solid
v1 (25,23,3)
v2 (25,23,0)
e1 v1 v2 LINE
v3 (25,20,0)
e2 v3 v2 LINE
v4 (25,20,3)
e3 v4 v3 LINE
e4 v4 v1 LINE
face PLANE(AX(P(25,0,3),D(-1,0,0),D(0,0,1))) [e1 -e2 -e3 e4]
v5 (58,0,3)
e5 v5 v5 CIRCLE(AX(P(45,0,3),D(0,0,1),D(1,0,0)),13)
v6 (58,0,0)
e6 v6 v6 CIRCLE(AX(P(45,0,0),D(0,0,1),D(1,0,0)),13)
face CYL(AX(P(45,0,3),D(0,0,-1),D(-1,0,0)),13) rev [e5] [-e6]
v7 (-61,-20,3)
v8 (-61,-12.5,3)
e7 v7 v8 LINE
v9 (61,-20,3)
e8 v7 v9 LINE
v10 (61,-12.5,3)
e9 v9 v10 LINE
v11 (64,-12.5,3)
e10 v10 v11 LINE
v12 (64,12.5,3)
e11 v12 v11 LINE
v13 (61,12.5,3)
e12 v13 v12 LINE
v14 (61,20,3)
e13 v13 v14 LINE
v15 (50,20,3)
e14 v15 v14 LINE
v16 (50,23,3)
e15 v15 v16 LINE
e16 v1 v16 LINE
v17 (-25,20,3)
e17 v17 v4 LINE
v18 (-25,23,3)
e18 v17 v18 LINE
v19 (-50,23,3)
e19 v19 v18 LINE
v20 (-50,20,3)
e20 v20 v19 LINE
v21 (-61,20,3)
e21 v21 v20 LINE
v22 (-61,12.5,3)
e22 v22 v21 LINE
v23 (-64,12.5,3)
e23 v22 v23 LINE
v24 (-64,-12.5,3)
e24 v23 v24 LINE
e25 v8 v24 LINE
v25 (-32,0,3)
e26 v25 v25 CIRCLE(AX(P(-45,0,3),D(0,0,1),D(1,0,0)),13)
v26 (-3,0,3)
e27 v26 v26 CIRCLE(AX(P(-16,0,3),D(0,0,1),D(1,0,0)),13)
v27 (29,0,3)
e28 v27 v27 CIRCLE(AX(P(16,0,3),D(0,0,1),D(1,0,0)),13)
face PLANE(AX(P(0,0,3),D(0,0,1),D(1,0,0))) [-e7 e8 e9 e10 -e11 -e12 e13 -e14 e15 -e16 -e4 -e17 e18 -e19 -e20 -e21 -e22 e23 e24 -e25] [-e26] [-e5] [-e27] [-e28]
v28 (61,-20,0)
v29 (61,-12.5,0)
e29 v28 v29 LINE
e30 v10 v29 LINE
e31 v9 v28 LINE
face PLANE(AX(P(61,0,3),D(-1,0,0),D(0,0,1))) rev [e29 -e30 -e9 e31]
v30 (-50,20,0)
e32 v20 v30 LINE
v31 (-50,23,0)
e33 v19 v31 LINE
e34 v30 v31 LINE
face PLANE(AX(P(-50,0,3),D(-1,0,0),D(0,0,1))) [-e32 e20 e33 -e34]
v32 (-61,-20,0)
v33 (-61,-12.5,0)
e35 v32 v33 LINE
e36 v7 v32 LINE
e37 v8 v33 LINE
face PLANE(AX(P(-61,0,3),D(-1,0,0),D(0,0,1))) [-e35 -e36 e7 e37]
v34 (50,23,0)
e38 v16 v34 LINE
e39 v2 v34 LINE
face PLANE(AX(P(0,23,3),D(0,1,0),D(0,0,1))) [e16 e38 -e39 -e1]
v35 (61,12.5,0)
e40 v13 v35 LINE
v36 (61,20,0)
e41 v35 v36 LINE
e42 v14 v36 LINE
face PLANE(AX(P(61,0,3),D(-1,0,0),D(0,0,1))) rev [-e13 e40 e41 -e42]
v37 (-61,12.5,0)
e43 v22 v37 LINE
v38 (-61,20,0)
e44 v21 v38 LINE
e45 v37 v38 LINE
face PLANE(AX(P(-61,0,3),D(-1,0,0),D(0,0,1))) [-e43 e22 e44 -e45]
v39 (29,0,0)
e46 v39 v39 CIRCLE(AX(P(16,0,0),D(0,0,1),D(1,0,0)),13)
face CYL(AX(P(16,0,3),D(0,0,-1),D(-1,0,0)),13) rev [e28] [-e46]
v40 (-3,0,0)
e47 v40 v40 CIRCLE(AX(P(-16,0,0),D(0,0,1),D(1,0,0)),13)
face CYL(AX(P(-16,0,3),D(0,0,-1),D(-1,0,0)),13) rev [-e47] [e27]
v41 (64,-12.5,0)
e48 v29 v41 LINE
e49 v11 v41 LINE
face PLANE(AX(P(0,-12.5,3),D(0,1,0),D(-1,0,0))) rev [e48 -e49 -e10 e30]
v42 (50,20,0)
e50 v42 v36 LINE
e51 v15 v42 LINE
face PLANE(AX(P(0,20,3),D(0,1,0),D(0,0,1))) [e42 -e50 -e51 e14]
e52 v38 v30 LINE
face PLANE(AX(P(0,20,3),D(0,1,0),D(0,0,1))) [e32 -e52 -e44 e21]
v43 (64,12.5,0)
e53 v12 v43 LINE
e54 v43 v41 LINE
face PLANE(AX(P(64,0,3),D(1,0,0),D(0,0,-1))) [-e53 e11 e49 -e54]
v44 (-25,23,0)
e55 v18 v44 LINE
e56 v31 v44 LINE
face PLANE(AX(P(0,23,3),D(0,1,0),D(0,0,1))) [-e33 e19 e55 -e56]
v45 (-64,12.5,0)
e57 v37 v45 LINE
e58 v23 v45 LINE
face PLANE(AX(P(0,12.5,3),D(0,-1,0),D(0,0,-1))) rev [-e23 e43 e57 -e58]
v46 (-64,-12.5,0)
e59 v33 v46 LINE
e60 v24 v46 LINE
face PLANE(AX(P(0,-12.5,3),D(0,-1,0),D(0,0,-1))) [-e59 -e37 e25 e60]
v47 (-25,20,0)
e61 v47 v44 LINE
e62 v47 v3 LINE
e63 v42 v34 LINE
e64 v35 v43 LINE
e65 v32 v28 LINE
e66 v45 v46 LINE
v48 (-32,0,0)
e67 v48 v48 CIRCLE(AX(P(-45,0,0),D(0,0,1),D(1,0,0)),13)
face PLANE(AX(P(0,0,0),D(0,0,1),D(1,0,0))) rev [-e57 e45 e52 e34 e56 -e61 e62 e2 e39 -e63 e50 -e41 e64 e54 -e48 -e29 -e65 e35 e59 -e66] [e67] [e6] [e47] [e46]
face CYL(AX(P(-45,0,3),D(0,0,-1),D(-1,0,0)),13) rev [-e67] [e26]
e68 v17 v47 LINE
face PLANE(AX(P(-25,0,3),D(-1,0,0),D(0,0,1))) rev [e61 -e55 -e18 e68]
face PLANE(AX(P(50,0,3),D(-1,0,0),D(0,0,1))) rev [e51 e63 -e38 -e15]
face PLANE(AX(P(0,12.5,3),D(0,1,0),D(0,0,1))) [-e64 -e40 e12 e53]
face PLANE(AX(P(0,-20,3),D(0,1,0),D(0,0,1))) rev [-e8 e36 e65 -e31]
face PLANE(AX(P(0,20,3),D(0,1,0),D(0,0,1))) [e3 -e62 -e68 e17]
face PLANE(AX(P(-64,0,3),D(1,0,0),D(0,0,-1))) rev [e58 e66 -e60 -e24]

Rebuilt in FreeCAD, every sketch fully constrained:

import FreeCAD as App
import Part
import Sketcher

V = App.Vector


def add_polygon(sketch, points):
    """Adds a closed chain of lines whose ends are joined by coincident constraints."""
    first, n = sketch.GeometryCount, len(points)
    for a, b in zip(points, points[1:] + points[:1]):
        sketch.addGeometry(Part.LineSegment(App.Vector(*a, 0), App.Vector(*b, 0)), False)
    for i in range(n):
        sketch.addConstraint(Sketcher.Constraint("Coincident", first + i, 2, first + (i + 1) % n, 1))

doc = App.newDocument("Part")
body = doc.addObject("PartDesign::Body", "Body")

# Sketch on XY plane
sketch1 = body.newObject("Sketcher::SketchObject", "Sketch")
sketch1.AttachmentSupport = (doc.getObject("XY_Plane"), [""])
sketch1.MapMode = "FlatFace"
add_polygon(sketch1, [(-61, -12.5), (-61, -20), (61, -20), (61, -12.5), (64, -12.5), (64, 12.5), (61, 12.5), (61, 20), (50, 20), (50, 23), (25, 23), (25, 20), (-25, 20), (-25, 23), (-50, 23), (-50, 20), (-61, 20), (-61, 12.5), (-64, 12.5), (-64, -12.5)])  # lines 0-19
sketch1.addGeometry(Part.Circle(V(-45, 0, 0), V(0, 0, 1), 13), False)  # 20
sketch1.addGeometry(Part.Circle(V(-16, 0, 0), V(0, 0, 1), 13), False)  # 21
sketch1.addGeometry(Part.Circle(V(16, 0, 0), V(0, 0, 1), 13), False)  # 22
sketch1.addGeometry(Part.Circle(V(45, 0, 0), V(0, 0, 1), 13), False)  # 23
sketch1.addConstraint(Sketcher.Constraint("Vertical", 0))
sketch1.addConstraint(Sketcher.Constraint("Horizontal", 1))
sketch1.addConstraint(Sketcher.Constraint("Vertical", 2))
sketch1.addConstraint(Sketcher.Constraint("Horizontal", 3))
sketch1.addConstraint(Sketcher.Constraint("Vertical", 4))
sketch1.addConstraint(Sketcher.Constraint("Horizontal", 5))
sketch1.addConstraint(Sketcher.Constraint("Vertical", 6))
sketch1.addConstraint(Sketcher.Constraint("Horizontal", 7))
sketch1.addConstraint(Sketcher.Constraint("Vertical", 8))
sketch1.addConstraint(Sketcher.Constraint("Horizontal", 9))
sketch1.addConstraint(Sketcher.Constraint("Vertical", 10))
sketch1.addConstraint(Sketcher.Constraint("Horizontal", 11))
sketch1.addConstraint(Sketcher.Constraint("Vertical", 12))
sketch1.addConstraint(Sketcher.Constraint("Horizontal", 13))
sketch1.addConstraint(Sketcher.Constraint("Vertical", 14))
sketch1.addConstraint(Sketcher.Constraint("Horizontal", 15))
sketch1.addConstraint(Sketcher.Constraint("Vertical", 16))
sketch1.addConstraint(Sketcher.Constraint("Horizontal", 17))
sketch1.addConstraint(Sketcher.Constraint("Vertical", 18))
sketch1.addConstraint(Sketcher.Constraint("Horizontal", 19))
sketch1.addConstraint(Sketcher.Constraint("Equal", 20, 21))
sketch1.addConstraint(Sketcher.Constraint("Equal", 21, 22))
sketch1.addConstraint(Sketcher.Constraint("Equal", 22, 23))
sketch1.addConstraint(Sketcher.Constraint("Symmetric", 21, 3, 22, 3, -1, 1))
sketch1.addConstraint(Sketcher.Constraint("Symmetric", 20, 3, 23, 3, -1, 1))
sketch1.addConstraint(Sketcher.Constraint("Symmetric", 0, 2, 6, 2, -1, 1))
sketch1.addConstraint(Sketcher.Constraint("Symmetric", 1, 2, 15, 2, -1, 1))
sketch1.addConstraint(Sketcher.Constraint("Symmetric", 3, 2, 17, 2, -1, 1))
sketch1.addConstraint(Sketcher.Constraint("Symmetric", 9, 2, 12, 2, -2))
sketch1.addConstraint(Sketcher.Constraint("Symmetric", 5, 2, 16, 2, -2))
sketch1.addConstraint(Sketcher.Constraint("PointOnObject", 20, 3, -1))
sketch1.addConstraint(Sketcher.Constraint("PointOnObject", 21, 3, -1))
sketch1.addConstraint(Sketcher.Constraint("Horizontal", 7, 2, 10, 2))
sketch1.addConstraint(Sketcher.Constraint("Horizontal", 3, 2, 18, 2))
sketch1.addConstraint(Sketcher.Constraint("Equal", 9, 13))
sketch1.addConstraint(Sketcher.Constraint("Equal", 13, 4))
sketch1.addConstraint(Sketcher.Constraint("Equal", 19, 8))
sketch1.addConstraint(Sketcher.Constraint("Diameter", 20, 26.0))
sketch1.addConstraint(Sketcher.Constraint("DistanceX", 1, 1, 1, 2, 122.0))
sketch1.addConstraint(Sketcher.Constraint("DistanceX", 3, 1, 3, 2, 3.0))
sketch1.addConstraint(Sketcher.Constraint("DistanceX", 7, 2, 7, 1, 11.0))
sketch1.addConstraint(Sketcher.Constraint("DistanceX", 9, 2, 9, 1, 25.0))
sketch1.addConstraint(Sketcher.Constraint("DistanceY", 0, 2, 0, 1, 7.5))
sketch1.addConstraint(Sketcher.Constraint("DistanceX", 20, 3, -1, 1, 45.0))
sketch1.addConstraint(Sketcher.Constraint("DistanceX", 21, 3, -1, 1, 16.0))
pad1 = body.newObject("PartDesign::Pad", "Pad")
pad1.Profile = sketch1
pad1.Length = 3

doc.recompute()
